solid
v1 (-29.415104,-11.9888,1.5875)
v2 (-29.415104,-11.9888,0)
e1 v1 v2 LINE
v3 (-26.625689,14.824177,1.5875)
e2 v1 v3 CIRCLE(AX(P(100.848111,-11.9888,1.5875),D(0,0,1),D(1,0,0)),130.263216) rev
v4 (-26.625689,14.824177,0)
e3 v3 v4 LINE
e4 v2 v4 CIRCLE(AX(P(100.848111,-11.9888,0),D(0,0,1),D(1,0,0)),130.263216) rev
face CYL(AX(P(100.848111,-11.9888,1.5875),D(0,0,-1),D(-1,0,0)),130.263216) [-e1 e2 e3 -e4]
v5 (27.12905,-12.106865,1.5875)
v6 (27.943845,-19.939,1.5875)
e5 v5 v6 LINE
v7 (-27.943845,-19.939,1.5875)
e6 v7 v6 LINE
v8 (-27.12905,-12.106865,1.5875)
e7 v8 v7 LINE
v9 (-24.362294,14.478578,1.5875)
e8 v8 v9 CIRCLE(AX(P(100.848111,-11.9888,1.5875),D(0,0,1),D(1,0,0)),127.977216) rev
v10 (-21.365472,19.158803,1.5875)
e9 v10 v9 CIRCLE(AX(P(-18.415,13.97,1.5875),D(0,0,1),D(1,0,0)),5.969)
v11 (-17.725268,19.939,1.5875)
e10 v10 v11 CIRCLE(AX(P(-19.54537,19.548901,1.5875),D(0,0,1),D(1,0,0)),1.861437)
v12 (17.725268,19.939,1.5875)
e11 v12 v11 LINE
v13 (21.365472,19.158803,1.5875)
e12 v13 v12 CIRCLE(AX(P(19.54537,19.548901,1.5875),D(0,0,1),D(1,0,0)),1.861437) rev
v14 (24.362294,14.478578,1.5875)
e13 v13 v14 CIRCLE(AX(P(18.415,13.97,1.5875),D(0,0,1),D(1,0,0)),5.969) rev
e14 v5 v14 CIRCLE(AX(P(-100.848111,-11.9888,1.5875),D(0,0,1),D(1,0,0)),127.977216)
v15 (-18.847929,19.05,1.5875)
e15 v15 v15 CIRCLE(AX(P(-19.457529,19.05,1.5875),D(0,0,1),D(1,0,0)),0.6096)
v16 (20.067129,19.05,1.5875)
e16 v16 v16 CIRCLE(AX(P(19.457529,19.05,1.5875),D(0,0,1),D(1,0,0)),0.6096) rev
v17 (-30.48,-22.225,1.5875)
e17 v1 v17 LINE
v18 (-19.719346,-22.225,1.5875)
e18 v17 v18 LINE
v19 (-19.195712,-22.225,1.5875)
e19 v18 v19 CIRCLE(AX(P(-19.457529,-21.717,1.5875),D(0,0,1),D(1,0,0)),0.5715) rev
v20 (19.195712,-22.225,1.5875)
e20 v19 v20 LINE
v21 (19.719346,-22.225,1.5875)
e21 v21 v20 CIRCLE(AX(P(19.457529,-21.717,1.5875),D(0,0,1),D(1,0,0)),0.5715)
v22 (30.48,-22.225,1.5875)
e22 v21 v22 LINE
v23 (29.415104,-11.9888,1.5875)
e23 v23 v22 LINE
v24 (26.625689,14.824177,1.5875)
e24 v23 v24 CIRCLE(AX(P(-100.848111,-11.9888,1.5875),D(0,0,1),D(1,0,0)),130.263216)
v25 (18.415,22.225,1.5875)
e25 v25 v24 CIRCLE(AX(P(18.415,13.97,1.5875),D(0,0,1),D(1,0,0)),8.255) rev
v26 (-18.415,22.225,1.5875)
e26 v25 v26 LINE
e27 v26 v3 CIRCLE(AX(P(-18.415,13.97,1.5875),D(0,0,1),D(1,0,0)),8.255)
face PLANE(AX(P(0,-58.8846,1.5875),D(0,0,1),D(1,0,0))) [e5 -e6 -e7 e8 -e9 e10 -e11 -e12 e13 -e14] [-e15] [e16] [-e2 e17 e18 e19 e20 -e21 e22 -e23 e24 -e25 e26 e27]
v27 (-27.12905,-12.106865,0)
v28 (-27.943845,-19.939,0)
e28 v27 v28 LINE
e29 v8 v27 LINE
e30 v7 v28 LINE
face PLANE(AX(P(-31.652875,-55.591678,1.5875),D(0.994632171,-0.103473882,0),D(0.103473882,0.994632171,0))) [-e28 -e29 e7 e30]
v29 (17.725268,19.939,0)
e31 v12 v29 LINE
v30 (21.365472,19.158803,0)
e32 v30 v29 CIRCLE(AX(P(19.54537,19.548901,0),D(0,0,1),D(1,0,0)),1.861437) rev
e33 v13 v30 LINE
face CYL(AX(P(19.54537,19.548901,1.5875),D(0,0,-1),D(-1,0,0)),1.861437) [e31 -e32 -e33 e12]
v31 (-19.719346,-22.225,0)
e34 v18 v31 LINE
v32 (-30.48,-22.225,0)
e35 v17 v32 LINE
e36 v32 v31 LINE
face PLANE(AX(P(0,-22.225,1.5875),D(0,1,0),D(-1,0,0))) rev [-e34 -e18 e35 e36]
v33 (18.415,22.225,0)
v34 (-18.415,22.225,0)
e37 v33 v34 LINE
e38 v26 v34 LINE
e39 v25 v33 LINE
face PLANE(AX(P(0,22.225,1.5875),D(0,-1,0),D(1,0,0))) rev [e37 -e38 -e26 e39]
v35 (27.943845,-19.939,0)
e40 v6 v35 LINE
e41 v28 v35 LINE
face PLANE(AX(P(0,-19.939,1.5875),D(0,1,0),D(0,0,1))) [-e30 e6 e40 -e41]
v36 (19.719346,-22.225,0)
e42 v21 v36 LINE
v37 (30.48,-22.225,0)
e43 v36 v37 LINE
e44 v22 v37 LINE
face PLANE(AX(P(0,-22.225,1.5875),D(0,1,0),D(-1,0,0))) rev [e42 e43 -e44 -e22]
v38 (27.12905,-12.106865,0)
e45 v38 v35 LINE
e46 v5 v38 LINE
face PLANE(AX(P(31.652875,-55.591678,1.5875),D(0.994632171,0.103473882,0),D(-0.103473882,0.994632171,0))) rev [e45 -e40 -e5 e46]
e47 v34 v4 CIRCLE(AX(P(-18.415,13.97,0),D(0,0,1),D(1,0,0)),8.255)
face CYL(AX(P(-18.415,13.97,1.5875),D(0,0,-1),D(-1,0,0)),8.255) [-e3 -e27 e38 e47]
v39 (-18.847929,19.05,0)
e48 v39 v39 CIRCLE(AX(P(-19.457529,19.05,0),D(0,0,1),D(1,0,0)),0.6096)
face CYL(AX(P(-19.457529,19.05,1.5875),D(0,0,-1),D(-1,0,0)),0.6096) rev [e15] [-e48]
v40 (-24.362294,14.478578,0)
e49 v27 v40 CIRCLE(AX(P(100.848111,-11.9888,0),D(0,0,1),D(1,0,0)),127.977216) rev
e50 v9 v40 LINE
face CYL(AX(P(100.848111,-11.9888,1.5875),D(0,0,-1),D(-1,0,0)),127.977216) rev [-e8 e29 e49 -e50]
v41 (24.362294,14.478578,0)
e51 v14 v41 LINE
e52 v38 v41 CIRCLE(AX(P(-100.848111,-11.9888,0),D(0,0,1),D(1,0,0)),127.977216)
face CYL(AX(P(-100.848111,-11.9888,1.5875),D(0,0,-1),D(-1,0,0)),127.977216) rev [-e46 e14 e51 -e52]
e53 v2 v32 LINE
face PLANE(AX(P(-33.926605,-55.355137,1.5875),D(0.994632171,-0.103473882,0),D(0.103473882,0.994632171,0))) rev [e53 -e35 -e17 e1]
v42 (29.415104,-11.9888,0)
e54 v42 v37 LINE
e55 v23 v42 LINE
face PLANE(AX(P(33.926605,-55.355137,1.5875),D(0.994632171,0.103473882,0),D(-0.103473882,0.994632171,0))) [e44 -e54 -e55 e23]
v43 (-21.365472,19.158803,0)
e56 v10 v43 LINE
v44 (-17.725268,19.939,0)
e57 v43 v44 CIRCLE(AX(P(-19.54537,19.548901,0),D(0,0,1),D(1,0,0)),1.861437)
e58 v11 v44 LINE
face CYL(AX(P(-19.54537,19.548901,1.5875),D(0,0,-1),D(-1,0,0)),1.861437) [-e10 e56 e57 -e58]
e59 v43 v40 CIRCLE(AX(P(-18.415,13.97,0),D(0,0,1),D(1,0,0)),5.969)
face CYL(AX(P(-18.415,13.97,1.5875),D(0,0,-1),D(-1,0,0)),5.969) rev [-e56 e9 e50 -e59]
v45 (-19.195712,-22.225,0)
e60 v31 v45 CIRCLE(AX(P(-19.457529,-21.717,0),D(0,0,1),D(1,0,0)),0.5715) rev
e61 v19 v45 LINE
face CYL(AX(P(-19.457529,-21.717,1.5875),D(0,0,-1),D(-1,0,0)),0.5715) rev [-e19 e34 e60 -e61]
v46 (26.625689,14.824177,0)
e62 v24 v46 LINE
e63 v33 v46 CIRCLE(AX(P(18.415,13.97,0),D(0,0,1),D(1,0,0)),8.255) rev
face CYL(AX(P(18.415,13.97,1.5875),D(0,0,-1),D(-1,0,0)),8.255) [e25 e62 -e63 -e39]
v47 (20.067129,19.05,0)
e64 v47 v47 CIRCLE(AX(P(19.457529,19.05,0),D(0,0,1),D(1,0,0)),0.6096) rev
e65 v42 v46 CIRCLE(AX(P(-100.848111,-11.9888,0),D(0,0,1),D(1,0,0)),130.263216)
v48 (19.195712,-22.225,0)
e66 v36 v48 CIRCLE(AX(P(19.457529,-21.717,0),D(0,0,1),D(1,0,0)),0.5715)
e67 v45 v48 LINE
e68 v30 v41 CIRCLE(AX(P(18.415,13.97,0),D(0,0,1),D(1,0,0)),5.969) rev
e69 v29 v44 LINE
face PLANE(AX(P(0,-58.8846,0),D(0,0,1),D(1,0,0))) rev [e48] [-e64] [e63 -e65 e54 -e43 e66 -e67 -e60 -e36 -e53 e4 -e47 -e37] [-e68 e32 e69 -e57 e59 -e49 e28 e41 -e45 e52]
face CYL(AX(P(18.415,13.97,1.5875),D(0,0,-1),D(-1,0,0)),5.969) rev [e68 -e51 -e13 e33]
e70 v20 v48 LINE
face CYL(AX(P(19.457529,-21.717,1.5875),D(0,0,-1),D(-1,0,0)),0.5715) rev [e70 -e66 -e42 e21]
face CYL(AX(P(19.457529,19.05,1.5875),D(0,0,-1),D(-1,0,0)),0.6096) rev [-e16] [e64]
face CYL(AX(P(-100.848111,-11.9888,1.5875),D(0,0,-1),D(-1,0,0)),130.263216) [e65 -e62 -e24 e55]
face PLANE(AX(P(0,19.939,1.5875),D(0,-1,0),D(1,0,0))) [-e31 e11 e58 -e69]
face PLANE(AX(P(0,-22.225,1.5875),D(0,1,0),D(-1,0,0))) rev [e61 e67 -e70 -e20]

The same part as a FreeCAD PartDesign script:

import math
import FreeCAD as App
import Part
import Sketcher

V = App.Vector
Q = App.Units.Quantity

doc = App.newDocument("Part")
params = doc.addObject("Spreadsheet::Sheet", "Params")
for row, (alias, value) in enumerate([
    ("sketch1_diameter", "0.048 in"),
    ("sketch1_radius", "0.325 in"),
    ("sketch1_radius2", "0.235 in"),
    ("sketch1_width", "1.45 in"),
    ("pad1_length", "0.0625 in"),
], start=1):
    params.set(f"A{row}", alias)
    params.set(f"B{row}", "=" + value)
    params.setAlias(f"B{row}", alias)

body = doc.addObject("PartDesign::Body", "Body")

# Sketch on XY plane
sketch1 = body.newObject("Sketcher::SketchObject", "Sketch")
sketch1.AttachmentSupport = (doc.getObject("XY_Plane"), [""])
sketch1.MapMode = "FlatFace"
sketch1.addGeometry(Part.LineSegment(V(30.5, -22.2, 0), V(29.4, -12, 0)), False)
sketch1.addGeometry(Part.ArcOfCircle(Part.Circle(V(-100.8, -12, 0), V(0, 0, 1), 130.3), math.radians(0), math.radians(11.88)), False)
sketch1.addGeometry(Part.ArcOfCircle(Part.Circle(V(18.4, 14, 0), V(0, 0, 1), 8.3), math.radians(6), math.radians(90)), False)
sketch1.addGeometry(Part.LineSegment(V(18.4, 22.2, 0), V(-18.4, 22.2, 0)), False)
sketch1.addGeometry(Part.ArcOfCircle(Part.Circle(V(-18.4, 14, 0), V(0, 0, 1), 8.3), math.radians(90), math.radians(174)), False)
sketch1.addGeometry(Part.ArcOfCircle(Part.Circle(V(100.8, -12, 0), V(0, 0, 1), 130.3), math.radians(168.12), math.radians(180)), False)
sketch1.addGeometry(Part.LineSegment(V(-29.4, -12, 0), V(-30.5, -22.2, 0)), False)
sketch1.addGeometry(Part.LineSegment(V(-30.5, -22.2, 0), V(-19.7, -22.2, 0)), False)
sketch1.addGeometry(Part.ArcOfCircle(Part.Circle(V(-19.5, -21.7, 0), V(0, 0, 1), 0.6), math.radians(-63), math.radians(243)), False)
sketch1.addGeometry(Part.LineSegment(V(-19.2, -22.2, 0), V(19.2, -22.2, 0)), False)
sketch1.addGeometry(Part.ArcOfCircle(Part.Circle(V(19.5, -21.7, 0), V(0, 0, 1), 0.6), math.radians(-63), math.radians(243)), False)
sketch1.addGeometry(Part.LineSegment(V(19.7, -22.2, 0), V(30.5, -22.2, 0)), False)
sketch1.addGeometry(Part.Circle(V(-19.5, 19.1, 0), V(0, 0, 1), 0.6), False)
sketch1.addGeometry(Part.LineSegment(V(-17.7, 19.9, 0), V(17.7, 19.9, 0)), False)
sketch1.addGeometry(Part.ArcOfCircle(Part.Circle(V(19.5, 19.5, 0), V(0, 0, 1), 1.9), math.radians(168), math.radians(348)), False)
sketch1.addGeometry(Part.ArcOfCircle(Part.Circle(V(18.4, 14, 0), V(0, 0, 1), 6), math.radians(5), math.radians(60)), False)
sketch1.addGeometry(Part.ArcOfCircle(Part.Circle(V(-100.8, -12, 0), V(0, 0, 1), 128), math.radians(-0.05), math.radians(11.94)), False)
sketch1.addGeometry(Part.LineSegment(V(27.1, -12.1, 0), V(27.9, -19.9, 0)), False)
sketch1.addGeometry(Part.LineSegment(V(27.9, -19.9, 0), V(-27.9, -19.9, 0)), False)
sketch1.addGeometry(Part.LineSegment(V(-27.9, -19.9, 0), V(-27.1, -12.1, 0)), False)
sketch1.addGeometry(Part.ArcOfCircle(Part.Circle(V(100.8, -12, 0), V(0, 0, 1), 128), math.radians(168.06), math.radians(180.05)), False)
sketch1.addGeometry(Part.ArcOfCircle(Part.Circle(V(-18.4, 14, 0), V(0, 0, 1), 6), math.radians(120), math.radians(175)), False)
sketch1.addGeometry(Part.ArcOfCircle(Part.Circle(V(-19.5, 19.5, 0), V(0, 0, 1), 1.9), math.radians(-168), math.radians(12)), False)
sketch1.addGeometry(Part.Circle(V(19.5, 19.1, 0), V(0, 0, 1), 0.6), False)
sketch1.addConstraint(Sketcher.Constraint("Coincident", 0, 2, 1, 1))
sketch1.addConstraint(Sketcher.Constraint("Coincident", 1, 2, 2, 1))
sketch1.addConstraint(Sketcher.Constraint("Tangent", 2, 2, 3, 1))
sketch1.addConstraint(Sketcher.Constraint("Tangent", 3, 2, 4, 1))
sketch1.addConstraint(Sketcher.Constraint("Coincident", 4, 2, 5, 1))
sketch1.addConstraint(Sketcher.Constraint("Coincident", 5, 2, 6, 1))
sketch1.addConstraint(Sketcher.Constraint("Coincident", 6, 2, 7, 1))
sketch1.addConstraint(Sketcher.Constraint("Coincident", 7, 2, 8, 2))
sketch1.addConstraint(Sketcher.Constraint("Coincident", 8, 1, 9, 1))
sketch1.addConstraint(Sketcher.Constraint("Coincident", 9, 2, 10, 2))
sketch1.addConstraint(Sketcher.Constraint("Coincident", 10, 1, 11, 1))
sketch1.addConstraint(Sketcher.Constraint("Coincident", 11, 2, 0, 1))
sketch1.addConstraint(Sketcher.Constraint("Coincident", 13, 2, 14, 1))
sketch1.addConstraint(Sketcher.Constraint("Coincident", 14, 2, 15, 2))
sketch1.addConstraint(Sketcher.Constraint("Coincident", 15, 1, 16, 2))
sketch1.addConstraint(Sketcher.Constraint("Coincident", 16, 1, 17, 1))
sketch1.addConstraint(Sketcher.Constraint("Coincident", 17, 2, 18, 1))
sketch1.addConstraint(Sketcher.Constraint("Coincident", 18, 2, 19, 1))
sketch1.addConstraint(Sketcher.Constraint("Coincident", 19, 2, 20, 2))
sketch1.addConstraint(Sketcher.Constraint("Coincident", 20, 1, 21, 2))
sketch1.addConstraint(Sketcher.Constraint("Coincident", 21, 1, 22, 1))
sketch1.addConstraint(Sketcher.Constraint("Coincident", 22, 2, 13, 1))
sketch1.addConstraint(Sketcher.Constraint("Horizontal", 3))
sketch1.addConstraint(Sketcher.Constraint("Horizontal", 7))
sketch1.addConstraint(Sketcher.Constraint("Horizontal", 9))
sketch1.addConstraint(Sketcher.Constraint("Horizontal", 11))
sketch1.addConstraint(Sketcher.Constraint("Horizontal", 13))
sketch1.addConstraint(Sketcher.Constraint("Horizontal", 18))
sketch1.addConstraint(Sketcher.Constraint("Coincident", 15, 3, 2, 3))
sketch1.addConstraint(Sketcher.Constraint("Coincident", 16, 3, 1, 3))
sketch1.addConstraint(Sketcher.Constraint("Coincident", 20, 3, 5, 3))
sketch1.addConstraint(Sketcher.Constraint("Coincident", 21, 3, 4, 3))
sketch1.addConstraint(Sketcher.Constraint("Equal", 2, 4))
sketch1.addConstraint(Sketcher.Constraint("Equal", 1, 5))
sketch1.addConstraint(Sketcher.Constraint("Equal", 8, 10))
sketch1.addConstraint(Sketcher.Constraint("Equal", 16, 20))
sketch1.addConstraint(Sketcher.Constraint("Equal", 15, 21))
sketch1.addConstraint(Sketcher.Constraint("Equal", 14, 22))
sketch1.addConstraint(Sketcher.Constraint("Equal", 12, 23))
sketch1.addConstraint(Sketcher.Constraint("Symmetric", 1, 3, 5, 3, -2))
sketch1.addConstraint(Sketcher.Constraint("Symmetric", 8, 3, 10, 3, -2))
sketch1.addConstraint(Sketcher.Constraint("Symmetric", 14, 3, 22, 3, -2))
sketch1.addConstraint(Sketcher.Constraint("Symmetric", 12, 3, 23, 3, -2))
sketch1.addConstraint(Sketcher.Constraint("Symmetric", 6, 2, 11, 2, -2))
sketch1.addConstraint(Sketcher.Constraint("Parallel", 0, 17))
sketch1.addConstraint(Sketcher.Constraint("Parallel", 6, 19))
sketch1.addConstraint(Sketcher.Constraint("Horizontal", 20, 3, 0, 2))
sketch1.addConstraint(Sketcher.Constraint("Horizontal", 1, 2, 4, 2))
sketch1.addConstraint(Sketcher.Constraint("Horizontal", 0, 2, 5, 2))
sketch1.addConstraint(Sketcher.Constraint("Horizontal", 7, 2, 8, 1))
sketch1.addConstraint(Sketcher.Constraint("Horizontal", 16, 1, 19, 2))
sketch1.addConstraint(Sketcher.Constraint("Vertical", 8, 3, 12, 3))
sketch1.addConstraint(Sketcher.Constraint("Diameter", 12, Q("0.048 in")))
sketch1.addConstraint(Sketcher.Constraint("Radius", 2, Q("0.325 in")))
sketch1.addConstraint(Sketcher.Constraint("Radius", 15, Q("0.235 in")))
sketch1.addConstraint(Sketcher.Constraint("DistanceX", 3, 2, 3, 1, Q("1.45 in")))
sketch1.addConstraint(Sketcher.Constraint("DistanceX", 6, 2, -1, 1, Q("1.2 in")))
sketch1.addConstraint(Sketcher.Constraint("Radius", 8, Q("0.0225 in")))
sketch1.addConstraint(Sketcher.Constraint("DistanceY", 4, 3, 12, 3, Q("0.2 in")))
sketch1.addConstraint(Sketcher.Constraint("DistanceY", -1, 1, 2, 3, Q("0.55 in")))
sketch1.addConstraint(Sketcher.Constraint("DistanceY", 6, 2, 8, 3, Q("0.02 in")))
sketch1.addConstraint(Sketcher.Constraint("DistanceY", 13, 2, 2, 2, Q("0.09 in")))
sketch1.addConstraint(Sketcher.Constraint("DistanceY", 11, 2, 17, 2, Q("0.09 in")))
sketch1.addConstraint(Sketcher.Constraint("DistanceY", 1, 3, -1, 1, Q("0.472 in")))
sketch1.addConstraint(Sketcher.Constraint("DistanceY", 8, 3, -1, 1, Q("0.855 in")))
sketch1.addConstraint(Sketcher.Constraint("Radius", 1, 130.263216))
sketch1.addConstraint(Sketcher.Constraint("Radius", 14, 1.861437))
sketch1.addConstraint(Sketcher.Constraint("Radius", 16, 127.977216))
sketch1.addConstraint(Sketcher.Constraint("DistanceX", 18, 2, 18, 1, 55.88769))
sketch1.addConstraint(Sketcher.Constraint("DistanceY", -1, 1, 14, 3, 19.548901))
sketch1.addConstraint(Sketcher.Constraint("DistanceX", 12, 3, 14, 3, 39.002899))
sketch1.addConstraint(Sketcher.Constraint("DistanceX", 14, 3, 14, 2, 1.820102))
sketch1.addConstraint(Sketcher.Constraint("DistanceY", 15, 1, 1, 2, 0.345599))
sketch1.setExpression("Constraints[52]", "Params.sketch1_diameter")
sketch1.setExpression("Constraints[53]", "Params.sketch1_radius")
sketch1.setExpression("Constraints[54]", "Params.sketch1_radius2")
sketch1.setExpression("Constraints[55]", "Params.sketch1_width")
pad1 = body.newObject("PartDesign::Pad", "Pad")
pad1.Profile = sketch1
pad1.setExpression("Length", "Params.pad1_length")

doc.recompute()
